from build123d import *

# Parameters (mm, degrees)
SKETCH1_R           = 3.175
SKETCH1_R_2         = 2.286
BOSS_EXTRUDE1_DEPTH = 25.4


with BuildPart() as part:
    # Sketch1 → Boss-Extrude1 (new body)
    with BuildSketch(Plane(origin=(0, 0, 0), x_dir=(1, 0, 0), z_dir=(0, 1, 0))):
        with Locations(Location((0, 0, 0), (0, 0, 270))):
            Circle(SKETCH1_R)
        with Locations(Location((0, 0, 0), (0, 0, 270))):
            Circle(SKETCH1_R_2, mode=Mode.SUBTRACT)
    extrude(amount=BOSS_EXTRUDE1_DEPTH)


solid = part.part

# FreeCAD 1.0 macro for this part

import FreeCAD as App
import Part
import Sketcher
Q = App.Units.Quantity

doc = App.newDocument("Part")
body = doc.addObject("PartDesign::Body", "Body")

# Sketch on XZ plane
sketch1 = body.newObject("Sketcher::SketchObject", "Sketch")
sketch1.AttachmentSupport = (doc.getObject("XZ_Plane"), [""])
sketch1.MapMode = "FlatFace"
sketch1.addGeometry([
    Part.Circle(App.Vector(0, 0, 0), App.Vector(0, 0, 1), 3.2),
    Part.Circle(App.Vector(0, 0, 0), App.Vector(0, 0, 1), 2.3),
], False)
sketch1.addConstraint([
    Sketcher.Constraint("Coincident", 0, 3, -1, 1),
    Sketcher.Constraint("Coincident", 1, 3, -1, 1),
    Sketcher.Constraint("Diameter", 0, Q("0.25 in")),
    Sketcher.Constraint("Diameter", 1, Q("0.18 in")),
])
pad1 = body.newObject("PartDesign::Pad", "Pad")
pad1.Profile = sketch1
pad1.Length = Q("1 in")
pad1.Reversed = True

doc.recompute()
